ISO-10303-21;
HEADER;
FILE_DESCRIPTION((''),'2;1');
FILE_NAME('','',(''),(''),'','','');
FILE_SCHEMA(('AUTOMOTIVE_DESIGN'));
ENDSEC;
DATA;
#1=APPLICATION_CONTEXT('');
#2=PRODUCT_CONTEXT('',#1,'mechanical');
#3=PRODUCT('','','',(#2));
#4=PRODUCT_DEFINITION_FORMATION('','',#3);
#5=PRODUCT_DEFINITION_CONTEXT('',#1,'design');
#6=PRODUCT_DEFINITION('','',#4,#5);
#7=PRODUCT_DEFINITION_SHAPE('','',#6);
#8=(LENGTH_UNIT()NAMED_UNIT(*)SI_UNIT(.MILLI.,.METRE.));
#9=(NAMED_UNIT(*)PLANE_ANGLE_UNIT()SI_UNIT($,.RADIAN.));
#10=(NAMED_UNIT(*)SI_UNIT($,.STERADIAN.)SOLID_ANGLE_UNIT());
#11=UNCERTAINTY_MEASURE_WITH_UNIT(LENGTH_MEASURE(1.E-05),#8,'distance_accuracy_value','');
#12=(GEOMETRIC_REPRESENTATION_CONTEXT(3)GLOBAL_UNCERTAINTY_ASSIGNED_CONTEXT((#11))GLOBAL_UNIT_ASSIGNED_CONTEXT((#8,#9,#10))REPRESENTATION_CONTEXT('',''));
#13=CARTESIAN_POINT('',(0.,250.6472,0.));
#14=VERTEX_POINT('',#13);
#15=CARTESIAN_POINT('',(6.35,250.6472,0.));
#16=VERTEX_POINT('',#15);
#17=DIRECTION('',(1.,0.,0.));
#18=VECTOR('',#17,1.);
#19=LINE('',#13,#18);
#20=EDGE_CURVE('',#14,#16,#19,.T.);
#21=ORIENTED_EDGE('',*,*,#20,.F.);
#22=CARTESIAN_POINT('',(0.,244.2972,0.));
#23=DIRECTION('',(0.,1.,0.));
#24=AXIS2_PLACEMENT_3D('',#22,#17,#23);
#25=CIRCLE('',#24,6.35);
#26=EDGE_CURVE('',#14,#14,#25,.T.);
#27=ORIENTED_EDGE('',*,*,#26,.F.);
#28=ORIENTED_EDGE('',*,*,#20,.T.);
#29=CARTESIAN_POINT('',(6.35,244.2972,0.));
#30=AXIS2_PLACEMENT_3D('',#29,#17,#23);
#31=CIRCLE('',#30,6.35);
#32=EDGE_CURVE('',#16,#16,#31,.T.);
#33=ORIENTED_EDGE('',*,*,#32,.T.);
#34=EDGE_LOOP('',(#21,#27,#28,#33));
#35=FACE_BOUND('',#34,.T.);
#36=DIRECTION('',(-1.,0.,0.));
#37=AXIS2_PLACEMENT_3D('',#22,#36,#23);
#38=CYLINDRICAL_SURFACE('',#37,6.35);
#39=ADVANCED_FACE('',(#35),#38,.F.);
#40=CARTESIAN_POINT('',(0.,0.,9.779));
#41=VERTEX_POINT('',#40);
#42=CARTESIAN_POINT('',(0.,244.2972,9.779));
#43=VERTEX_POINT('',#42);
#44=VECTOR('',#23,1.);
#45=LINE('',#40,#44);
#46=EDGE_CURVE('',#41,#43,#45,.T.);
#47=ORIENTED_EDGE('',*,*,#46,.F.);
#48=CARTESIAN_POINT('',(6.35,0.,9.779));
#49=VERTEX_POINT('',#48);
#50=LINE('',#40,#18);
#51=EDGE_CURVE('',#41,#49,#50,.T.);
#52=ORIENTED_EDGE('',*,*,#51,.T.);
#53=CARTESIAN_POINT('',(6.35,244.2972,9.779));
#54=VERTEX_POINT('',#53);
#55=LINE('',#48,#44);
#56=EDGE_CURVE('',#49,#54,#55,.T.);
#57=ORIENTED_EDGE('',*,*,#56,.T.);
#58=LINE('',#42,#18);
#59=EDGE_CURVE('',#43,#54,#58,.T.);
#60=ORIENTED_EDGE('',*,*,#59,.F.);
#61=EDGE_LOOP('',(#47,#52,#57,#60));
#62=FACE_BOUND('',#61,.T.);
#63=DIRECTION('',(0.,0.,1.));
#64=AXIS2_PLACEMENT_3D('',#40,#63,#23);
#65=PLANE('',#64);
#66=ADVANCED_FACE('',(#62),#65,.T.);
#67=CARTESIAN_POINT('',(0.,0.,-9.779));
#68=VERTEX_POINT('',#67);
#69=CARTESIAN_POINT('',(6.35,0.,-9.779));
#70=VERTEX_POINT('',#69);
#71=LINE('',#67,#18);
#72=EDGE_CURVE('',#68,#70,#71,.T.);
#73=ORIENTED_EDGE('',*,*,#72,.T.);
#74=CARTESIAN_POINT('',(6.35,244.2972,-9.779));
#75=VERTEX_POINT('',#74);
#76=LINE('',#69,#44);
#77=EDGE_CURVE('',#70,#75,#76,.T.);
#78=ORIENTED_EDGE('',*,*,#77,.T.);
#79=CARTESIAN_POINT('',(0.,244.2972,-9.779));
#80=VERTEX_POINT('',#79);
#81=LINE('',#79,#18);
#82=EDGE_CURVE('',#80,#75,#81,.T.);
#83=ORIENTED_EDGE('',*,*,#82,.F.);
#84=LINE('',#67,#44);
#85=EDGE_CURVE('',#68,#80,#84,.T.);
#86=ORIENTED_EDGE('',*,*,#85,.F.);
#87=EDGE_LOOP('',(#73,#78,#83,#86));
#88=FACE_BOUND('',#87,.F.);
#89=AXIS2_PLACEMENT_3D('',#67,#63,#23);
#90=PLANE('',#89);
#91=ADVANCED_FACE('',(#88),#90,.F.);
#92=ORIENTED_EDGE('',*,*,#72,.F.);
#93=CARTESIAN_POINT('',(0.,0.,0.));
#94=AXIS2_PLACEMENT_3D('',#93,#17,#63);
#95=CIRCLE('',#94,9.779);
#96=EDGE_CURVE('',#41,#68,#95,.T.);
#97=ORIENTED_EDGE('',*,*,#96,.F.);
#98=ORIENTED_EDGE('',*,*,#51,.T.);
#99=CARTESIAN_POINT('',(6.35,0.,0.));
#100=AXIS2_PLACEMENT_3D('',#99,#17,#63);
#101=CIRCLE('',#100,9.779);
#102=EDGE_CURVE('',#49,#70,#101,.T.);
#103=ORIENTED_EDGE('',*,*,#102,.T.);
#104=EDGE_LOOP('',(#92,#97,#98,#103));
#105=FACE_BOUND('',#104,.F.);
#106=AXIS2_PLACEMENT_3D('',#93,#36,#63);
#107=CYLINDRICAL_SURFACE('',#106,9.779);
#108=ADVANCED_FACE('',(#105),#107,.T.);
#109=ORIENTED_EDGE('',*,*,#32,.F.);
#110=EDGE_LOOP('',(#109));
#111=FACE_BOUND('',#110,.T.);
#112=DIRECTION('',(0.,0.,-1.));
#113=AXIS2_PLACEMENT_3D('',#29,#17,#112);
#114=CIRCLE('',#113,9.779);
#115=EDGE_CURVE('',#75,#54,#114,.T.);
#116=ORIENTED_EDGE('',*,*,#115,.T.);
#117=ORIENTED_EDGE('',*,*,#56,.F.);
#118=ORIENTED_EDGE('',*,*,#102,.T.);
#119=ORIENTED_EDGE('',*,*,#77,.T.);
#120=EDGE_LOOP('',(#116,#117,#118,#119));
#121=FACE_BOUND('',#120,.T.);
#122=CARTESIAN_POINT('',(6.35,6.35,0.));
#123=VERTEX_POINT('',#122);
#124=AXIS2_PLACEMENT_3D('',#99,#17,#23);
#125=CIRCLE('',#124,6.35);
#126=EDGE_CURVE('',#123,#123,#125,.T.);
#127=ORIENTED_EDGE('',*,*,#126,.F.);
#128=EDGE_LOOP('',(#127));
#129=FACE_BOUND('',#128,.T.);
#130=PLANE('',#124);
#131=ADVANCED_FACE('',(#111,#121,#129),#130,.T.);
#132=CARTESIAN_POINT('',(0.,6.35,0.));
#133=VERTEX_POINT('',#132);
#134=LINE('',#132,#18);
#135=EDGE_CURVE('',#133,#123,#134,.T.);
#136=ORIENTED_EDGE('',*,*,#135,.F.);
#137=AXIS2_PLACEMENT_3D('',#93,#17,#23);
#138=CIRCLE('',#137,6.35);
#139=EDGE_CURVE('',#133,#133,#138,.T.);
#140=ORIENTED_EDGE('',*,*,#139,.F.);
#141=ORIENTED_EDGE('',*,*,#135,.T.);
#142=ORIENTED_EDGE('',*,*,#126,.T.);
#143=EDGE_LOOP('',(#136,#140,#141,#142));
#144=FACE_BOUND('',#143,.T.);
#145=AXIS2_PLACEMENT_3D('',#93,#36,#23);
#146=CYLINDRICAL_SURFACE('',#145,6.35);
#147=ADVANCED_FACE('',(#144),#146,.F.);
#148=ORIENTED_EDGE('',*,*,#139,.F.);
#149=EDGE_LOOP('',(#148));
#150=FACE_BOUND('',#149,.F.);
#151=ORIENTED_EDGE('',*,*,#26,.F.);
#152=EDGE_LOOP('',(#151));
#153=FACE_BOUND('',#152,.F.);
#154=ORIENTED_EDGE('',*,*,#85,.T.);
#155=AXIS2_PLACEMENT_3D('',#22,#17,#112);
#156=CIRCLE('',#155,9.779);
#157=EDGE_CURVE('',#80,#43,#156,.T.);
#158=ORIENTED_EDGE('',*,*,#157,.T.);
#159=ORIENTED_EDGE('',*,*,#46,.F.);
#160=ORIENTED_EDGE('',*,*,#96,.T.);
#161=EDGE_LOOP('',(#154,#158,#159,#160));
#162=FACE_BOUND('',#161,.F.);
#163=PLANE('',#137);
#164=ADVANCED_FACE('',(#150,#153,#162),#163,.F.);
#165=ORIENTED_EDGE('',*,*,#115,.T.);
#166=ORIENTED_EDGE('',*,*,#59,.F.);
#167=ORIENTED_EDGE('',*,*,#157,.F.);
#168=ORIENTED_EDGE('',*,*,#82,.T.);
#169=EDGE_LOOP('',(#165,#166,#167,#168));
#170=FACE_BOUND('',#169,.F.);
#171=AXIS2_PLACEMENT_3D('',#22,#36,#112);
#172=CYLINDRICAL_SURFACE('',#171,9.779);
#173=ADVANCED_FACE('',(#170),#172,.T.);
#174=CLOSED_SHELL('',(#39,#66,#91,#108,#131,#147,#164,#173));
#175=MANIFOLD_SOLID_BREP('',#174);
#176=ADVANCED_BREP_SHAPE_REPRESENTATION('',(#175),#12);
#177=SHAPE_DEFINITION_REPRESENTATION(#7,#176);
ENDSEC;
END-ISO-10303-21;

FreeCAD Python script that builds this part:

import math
import FreeCAD as App
import Part
import Sketcher
from FreeCAD import Vector
Q = App.Units.Quantity

doc = App.newDocument("Part")
body = doc.addObject("PartDesign::Body", "Body")

sketch1 = body.newObject("Sketcher::SketchObject", "Sketch")
sketch1.AttachmentSupport = (doc.getObject("YZ_Plane"), [""])
sketch1.MapMode = "FlatFace"
sketch1.addGeometry(Part.LineSegment(Vector(244.2972, 9.779, 0), Vector(0, 9.779, 0)), False)
sketch1.addGeometry(Part.ArcOfCircle(Part.Circle(Vector(0, 0, 0), Vector(0, 0, 1), 9.779), math.radians(90), math.radians(270)), False)
sketch1.addGeometry(Part.LineSegment(Vector(0, -9.779, 0), Vector(244.2972, -9.779, 0)), False)
sketch1.addGeometry(Part.ArcOfCircle(Part.Circle(Vector(244.2972, 0, 0), Vector(0, 0, 1), 9.779), math.radians(-90), math.radians(90)), False)
sketch1.addGeometry(Part.Circle(Vector(0, 0, 0), Vector(0, 0, 1), 6.35), False)
sketch1.addGeometry(Part.Circle(Vector(244.2972, 0, 0), Vector(0, 0, 1), 6.35), False)
sketch1.addConstraint(Sketcher.Constraint("Tangent", 0, 2, 1, 1))
sketch1.addConstraint(Sketcher.Constraint("Tangent", 1, 2, 2, 1))
sketch1.addConstraint(Sketcher.Constraint("Tangent", 2, 2, 3, 1))
sketch1.addConstraint(Sketcher.Constraint("Tangent", 3, 2, 0, 1))
sketch1.addConstraint(Sketcher.Constraint("Horizontal", 0))
sketch1.addConstraint(Sketcher.Constraint("Horizontal", 2))
sketch1.addConstraint(Sketcher.Constraint("Coincident", 1, 3, -1, 1))
sketch1.addConstraint(Sketcher.Constraint("Coincident", 4, 3, -1, 1))
sketch1.addConstraint(Sketcher.Constraint("Coincident", 5, 3, 3, 3))
sketch1.addConstraint(Sketcher.Constraint("Equal", 4, 5))
sketch1.addConstraint(Sketcher.Constraint("Diameter", 4, Q("0.5 in")))
sketch1.addConstraint(Sketcher.Constraint("Radius", 1, Q("0.385 in")))
sketch1.addConstraint(Sketcher.Constraint("DistanceX", 0, 2, 0, 1, Q("9.618 in")))
pad1 = body.newObject("PartDesign::Pad", "Pad")
pad1.Profile = sketch1
pad1.Length = Q("0.25 in")

doc.recompute()
